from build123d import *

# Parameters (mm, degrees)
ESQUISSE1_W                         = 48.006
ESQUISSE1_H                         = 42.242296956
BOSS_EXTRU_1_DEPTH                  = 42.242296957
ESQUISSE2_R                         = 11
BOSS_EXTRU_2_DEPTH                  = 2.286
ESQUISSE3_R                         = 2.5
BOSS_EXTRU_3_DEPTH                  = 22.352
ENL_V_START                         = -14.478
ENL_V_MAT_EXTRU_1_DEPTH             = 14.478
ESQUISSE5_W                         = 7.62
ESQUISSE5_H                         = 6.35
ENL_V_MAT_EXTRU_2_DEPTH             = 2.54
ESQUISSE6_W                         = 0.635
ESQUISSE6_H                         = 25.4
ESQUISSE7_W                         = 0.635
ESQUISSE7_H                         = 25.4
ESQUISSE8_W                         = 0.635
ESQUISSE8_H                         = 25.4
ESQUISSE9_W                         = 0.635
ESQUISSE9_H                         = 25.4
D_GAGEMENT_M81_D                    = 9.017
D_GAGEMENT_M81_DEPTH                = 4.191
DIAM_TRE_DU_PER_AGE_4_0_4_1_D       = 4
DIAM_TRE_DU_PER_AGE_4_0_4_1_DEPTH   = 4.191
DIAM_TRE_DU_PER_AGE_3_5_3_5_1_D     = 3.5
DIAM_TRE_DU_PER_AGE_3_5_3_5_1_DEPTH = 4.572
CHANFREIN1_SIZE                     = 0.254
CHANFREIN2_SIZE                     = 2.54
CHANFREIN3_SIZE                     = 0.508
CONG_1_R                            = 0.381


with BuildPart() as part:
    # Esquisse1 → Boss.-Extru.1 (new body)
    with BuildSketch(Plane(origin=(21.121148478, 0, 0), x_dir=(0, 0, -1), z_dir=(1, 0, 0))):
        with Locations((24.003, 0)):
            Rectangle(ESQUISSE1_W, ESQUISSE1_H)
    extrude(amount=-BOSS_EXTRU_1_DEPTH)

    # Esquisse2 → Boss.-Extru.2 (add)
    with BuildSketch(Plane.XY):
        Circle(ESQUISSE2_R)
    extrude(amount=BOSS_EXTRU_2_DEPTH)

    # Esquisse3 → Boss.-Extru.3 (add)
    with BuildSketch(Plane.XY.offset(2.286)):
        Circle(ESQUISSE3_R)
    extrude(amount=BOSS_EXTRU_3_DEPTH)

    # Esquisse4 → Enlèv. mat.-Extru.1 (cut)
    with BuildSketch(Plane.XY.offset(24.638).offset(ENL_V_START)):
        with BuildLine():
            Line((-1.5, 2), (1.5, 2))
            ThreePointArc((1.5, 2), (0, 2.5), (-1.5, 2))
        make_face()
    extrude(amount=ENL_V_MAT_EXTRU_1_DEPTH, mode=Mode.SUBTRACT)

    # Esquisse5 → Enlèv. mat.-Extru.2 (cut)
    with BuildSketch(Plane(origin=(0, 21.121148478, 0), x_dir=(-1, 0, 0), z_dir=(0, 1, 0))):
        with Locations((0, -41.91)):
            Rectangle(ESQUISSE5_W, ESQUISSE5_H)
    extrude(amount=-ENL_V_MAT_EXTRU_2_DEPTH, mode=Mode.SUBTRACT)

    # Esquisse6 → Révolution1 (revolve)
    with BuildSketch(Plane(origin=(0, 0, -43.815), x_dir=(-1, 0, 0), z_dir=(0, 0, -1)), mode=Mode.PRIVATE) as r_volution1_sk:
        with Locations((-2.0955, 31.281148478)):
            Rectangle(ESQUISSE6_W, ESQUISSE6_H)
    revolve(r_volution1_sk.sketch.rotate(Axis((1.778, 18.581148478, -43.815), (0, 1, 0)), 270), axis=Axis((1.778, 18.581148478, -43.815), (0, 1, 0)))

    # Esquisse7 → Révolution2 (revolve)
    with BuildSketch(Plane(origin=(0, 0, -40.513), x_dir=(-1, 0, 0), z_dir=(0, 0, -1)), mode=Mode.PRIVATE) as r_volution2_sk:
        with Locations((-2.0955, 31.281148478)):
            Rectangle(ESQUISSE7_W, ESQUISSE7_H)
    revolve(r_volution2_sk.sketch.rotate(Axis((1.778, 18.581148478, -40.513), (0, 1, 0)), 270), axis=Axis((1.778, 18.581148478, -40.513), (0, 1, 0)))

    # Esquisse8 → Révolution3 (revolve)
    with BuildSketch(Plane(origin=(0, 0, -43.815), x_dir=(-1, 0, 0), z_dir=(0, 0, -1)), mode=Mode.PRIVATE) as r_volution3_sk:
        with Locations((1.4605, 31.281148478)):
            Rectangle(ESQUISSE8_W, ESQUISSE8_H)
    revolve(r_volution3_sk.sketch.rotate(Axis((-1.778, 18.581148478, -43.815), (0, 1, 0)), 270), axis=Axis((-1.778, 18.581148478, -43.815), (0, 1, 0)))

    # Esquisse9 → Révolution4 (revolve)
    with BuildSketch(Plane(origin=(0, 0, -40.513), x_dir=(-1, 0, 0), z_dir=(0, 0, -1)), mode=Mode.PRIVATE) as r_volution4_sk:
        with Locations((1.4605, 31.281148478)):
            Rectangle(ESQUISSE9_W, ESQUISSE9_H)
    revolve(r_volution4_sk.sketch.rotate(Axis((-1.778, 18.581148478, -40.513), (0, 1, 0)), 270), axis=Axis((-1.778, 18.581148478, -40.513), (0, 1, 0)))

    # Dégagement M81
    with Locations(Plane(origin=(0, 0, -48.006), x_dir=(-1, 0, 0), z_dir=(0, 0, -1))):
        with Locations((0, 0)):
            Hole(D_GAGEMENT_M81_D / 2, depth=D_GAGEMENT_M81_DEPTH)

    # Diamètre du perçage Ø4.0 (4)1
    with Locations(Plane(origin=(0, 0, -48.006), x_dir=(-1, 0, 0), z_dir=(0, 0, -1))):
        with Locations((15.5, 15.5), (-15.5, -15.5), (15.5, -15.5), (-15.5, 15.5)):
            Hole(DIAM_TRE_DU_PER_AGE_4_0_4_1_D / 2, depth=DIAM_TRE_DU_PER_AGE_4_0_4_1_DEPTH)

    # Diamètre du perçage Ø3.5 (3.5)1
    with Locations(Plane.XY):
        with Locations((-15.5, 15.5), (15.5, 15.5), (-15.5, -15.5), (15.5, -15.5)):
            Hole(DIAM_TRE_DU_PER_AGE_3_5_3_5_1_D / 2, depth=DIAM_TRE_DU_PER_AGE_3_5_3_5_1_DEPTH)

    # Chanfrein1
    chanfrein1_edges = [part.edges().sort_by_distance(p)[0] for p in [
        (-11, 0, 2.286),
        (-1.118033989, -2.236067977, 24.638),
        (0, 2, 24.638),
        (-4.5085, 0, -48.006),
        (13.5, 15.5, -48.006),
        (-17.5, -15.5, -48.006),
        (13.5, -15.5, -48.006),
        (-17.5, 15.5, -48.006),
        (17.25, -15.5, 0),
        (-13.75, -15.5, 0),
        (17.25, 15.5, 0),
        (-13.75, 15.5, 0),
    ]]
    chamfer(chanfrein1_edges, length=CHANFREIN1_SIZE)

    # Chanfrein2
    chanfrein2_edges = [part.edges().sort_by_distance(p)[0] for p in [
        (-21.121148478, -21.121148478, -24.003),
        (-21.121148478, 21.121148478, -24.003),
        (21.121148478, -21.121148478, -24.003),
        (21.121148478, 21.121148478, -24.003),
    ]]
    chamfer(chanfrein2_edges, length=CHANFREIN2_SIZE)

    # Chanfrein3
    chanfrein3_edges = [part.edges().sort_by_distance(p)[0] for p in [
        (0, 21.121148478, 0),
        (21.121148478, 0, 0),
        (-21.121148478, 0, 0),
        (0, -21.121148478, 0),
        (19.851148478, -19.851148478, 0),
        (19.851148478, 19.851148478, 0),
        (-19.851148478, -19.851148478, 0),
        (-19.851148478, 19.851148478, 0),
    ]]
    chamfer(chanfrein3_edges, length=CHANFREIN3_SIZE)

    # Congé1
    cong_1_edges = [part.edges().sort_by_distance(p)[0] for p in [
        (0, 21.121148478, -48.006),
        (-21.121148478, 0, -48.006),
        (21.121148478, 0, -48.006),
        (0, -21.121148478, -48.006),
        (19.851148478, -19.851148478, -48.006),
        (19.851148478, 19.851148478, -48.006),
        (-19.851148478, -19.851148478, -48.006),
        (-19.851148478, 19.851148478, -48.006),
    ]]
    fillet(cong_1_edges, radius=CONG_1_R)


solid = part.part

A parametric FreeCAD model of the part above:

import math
import FreeCAD as App
import Part
import Sketcher
Q = App.Units.Quantity


def edges_at(feature, points):
    """Names of the edges that pass closest to the given points."""
    edges = feature.Shape.Edges
    near = lambda p: min(range(len(edges)), key=lambda i: edges[i].distToShape(Part.Vertex(*p))[0])
    return sorted({f"Edge{near(p) + 1}" for p in points})

doc = App.newDocument("Part")
body = doc.addObject("PartDesign::Body", "Body")

# Sketch on YZ plane
sketch1 = body.newObject("Sketcher::SketchObject", "Sketch")
sketch1.AttachmentSupport = (doc.getObject("YZ_Plane"), [""])
sketch1.MapMode = "FlatFace"
sketch1.AttachmentOffset = App.Placement(App.Vector(0, 0, 21.121148), App.Rotation())
sketch1.addGeometry(Part.LineSegment(App.Vector(21, 0, 0), App.Vector(-21, 0, 0)), False)
sketch1.addGeometry(Part.LineSegment(App.Vector(-21, 0, 0), App.Vector(-21, -48, 0)), False)
sketch1.addGeometry(Part.LineSegment(App.Vector(-21, -48, 0), App.Vector(21, -48, 0)), False)
sketch1.addGeometry(Part.LineSegment(App.Vector(21, -48, 0), App.Vector(21, 0, 0)), False)
sketch1.addConstraint(Sketcher.Constraint("Coincident", 0, 2, 1, 1))
sketch1.addConstraint(Sketcher.Constraint("Coincident", 1, 2, 2, 1))
sketch1.addConstraint(Sketcher.Constraint("Coincident", 2, 2, 3, 1))
sketch1.addConstraint(Sketcher.Constraint("Coincident", 3, 2, 0, 1))
sketch1.addConstraint(Sketcher.Constraint("Horizontal", 0))
sketch1.addConstraint(Sketcher.Constraint("Vertical", 1))
sketch1.addConstraint(Sketcher.Constraint("Horizontal", 2))
sketch1.addConstraint(Sketcher.Constraint("Vertical", 3))
sketch1.addConstraint(Sketcher.Constraint("Symmetric", 0, 2, 3, 2, -1, 1))
sketch1.addConstraint(Sketcher.Constraint("DistanceY", 1, 2, 1, 1, Q("1.89 in")))
sketch1.addConstraint(Sketcher.Constraint("DistanceX", 0, 2, 0, 1, Q("42.242297 mm")))
pad1 = body.newObject("PartDesign::Pad", "Pad")
pad1.Profile = sketch1
pad1.Length = 42.242297
pad1.Reversed = True

# Sketch on XY plane
sketch2 = body.newObject("Sketcher::SketchObject", "Sketch001")
sketch2.AttachmentSupport = (doc.getObject("XY_Plane"), [""])
sketch2.MapMode = "FlatFace"
sketch2.addGeometry(Part.Circle(App.Vector(0, 0, 0), App.Vector(0, 0, 1), 11), False)
sketch2.addConstraint(Sketcher.Constraint("Coincident", 0, 3, -1, 1))
sketch2.addConstraint(Sketcher.Constraint("Diameter", 0, Q("22 mm")))
pad2 = body.newObject("PartDesign::Pad", "Pad001")
pad2.Profile = sketch2
pad2.Length = Q("0.09 in")

# Sketch on XY plane
sketch3 = body.newObject("Sketcher::SketchObject", "Sketch002")
sketch3.AttachmentSupport = (doc.getObject("XY_Plane"), [""])
sketch3.MapMode = "FlatFace"
sketch3.AttachmentOffset = App.Placement(App.Vector(0, 0, 0.09 * 25.4), App.Rotation())
sketch3.addGeometry(Part.Circle(App.Vector(0, 0, 0), App.Vector(0, 0, 1), 2.5), False)
sketch3.addConstraint(Sketcher.Constraint("Coincident", 0, 3, -1, 1))
sketch3.addConstraint(Sketcher.Constraint("Diameter", 0, Q("5 mm")))
pad3 = body.newObject("PartDesign::Pad", "Pad002")
pad3.Profile = sketch3
pad3.Length = Q("0.88 in")

# Sketch on XY plane
sketch4 = body.newObject("Sketcher::SketchObject", "Sketch003")
sketch4.AttachmentSupport = (doc.getObject("XY_Plane"), [""])
sketch4.MapMode = "FlatFace"
sketch4.AttachmentOffset = App.Placement(App.Vector(0, 0, 0.4 * 25.4), App.Rotation())
sketch4.addGeometry(Part.LineSegment(App.Vector(-1.5, 2, 0), App.Vector(1.5, 2, 0)), False)
sketch4.addGeometry(Part.ArcOfCircle(Part.Circle(App.Vector(0, 0, 0), App.Vector(0, 0, 1), 2.5), math.radians(53), math.radians(127)), False)
sketch4.addConstraint(Sketcher.Constraint("Coincident", 0, 1, 1, 2))
sketch4.addConstraint(Sketcher.Constraint("Coincident", 1, 1, 0, 2))
sketch4.addConstraint(Sketcher.Constraint("Horizontal", 0))
sketch4.addConstraint(Sketcher.Constraint("Coincident", 1, 3, -1, 1))
sketch4.addConstraint(Sketcher.Constraint("Radius", 1, Q("2.5 mm")))
sketch4.addConstraint(Sketcher.Constraint("DistanceX", 0, 1, 0, 2, Q("3 mm")))
pocket1 = body.newObject("PartDesign::Pocket", "Pocket")
pocket1.Profile = sketch4
pocket1.Length = Q("0.57 in")
pocket1.Reversed = True

# Sketch on XZ plane
sketch5 = body.newObject("Sketcher::SketchObject", "Sketch004")
sketch5.AttachmentSupport = (doc.getObject("XZ_Plane"), [""])
sketch5.MapMode = "FlatFace"
sketch5.AttachmentOffset = App.Placement(App.Vector(0, 0, -21.121148), App.Rotation())
sketch5.addGeometry(Part.LineSegment(App.Vector(4, -39, 0), App.Vector(4, -45, 0)), False)
sketch5.addGeometry(Part.LineSegment(App.Vector(4, -45, 0), App.Vector(-4, -45, 0)), False)
sketch5.addGeometry(Part.LineSegment(App.Vector(-4, -45, 0), App.Vector(-4, -39, 0)), False)
sketch5.addGeometry(Part.LineSegment(App.Vector(-4, -39, 0), App.Vector(4, -39, 0)), False)
sketch5.addConstraint(Sketcher.Constraint("Coincident", 0, 2, 1, 1))
sketch5.addConstraint(Sketcher.Constraint("Coincident", 1, 2, 2, 1))
sketch5.addConstraint(Sketcher.Constraint("Coincident", 2, 2, 3, 1))
sketch5.addConstraint(Sketcher.Constraint("Coincident", 3, 2, 0, 1))
sketch5.addConstraint(Sketcher.Constraint("Vertical", 0))
sketch5.addConstraint(Sketcher.Constraint("Horizontal", 1))
sketch5.addConstraint(Sketcher.Constraint("Vertical", 2))
sketch5.addConstraint(Sketcher.Constraint("Horizontal", 3))
sketch5.addConstraint(Sketcher.Constraint("DistanceX", 1, 2, 1, 1, Q("0.3 in")))
sketch5.addConstraint(Sketcher.Constraint("DistanceY", 0, 2, 0, 1, Q("0.25 in")))
sketch5.addConstraint(Sketcher.Constraint("DistanceX", -1, 1, 0, 2, Q("0.15 in")))
sketch5.addConstraint(Sketcher.Constraint("DistanceY", 0, 2, -1, 1, Q("1.775 in")))
pocket2 = body.newObject("PartDesign::Pocket", "Pocket001")
pocket2.Profile = sketch5
pocket2.Length = Q("0.1 in")
pocket2.Reversed = True

# Sketch on XY plane
sketch6 = body.newObject("Sketcher::SketchObject", "Sketch005")
sketch6.AttachmentSupport = (doc.getObject("XY_Plane"), [""])
sketch6.MapMode = "FlatFace"
sketch6.AttachmentOffset = App.Placement(App.Vector(0, 0, -1.725 * 25.4), App.Rotation())
sketch6.addGeometry(Part.LineSegment(App.Vector(2.4, 44, 0), App.Vector(2.4, 18.6, 0)), False)
sketch6.addGeometry(Part.LineSegment(App.Vector(2.4, 18.6, 0), App.Vector(1.8, 18.6, 0)), False)
sketch6.addGeometry(Part.LineSegment(App.Vector(1.8, 18.6, 0), App.Vector(1.8, 44, 0)), False)
sketch6.addGeometry(Part.LineSegment(App.Vector(1.8, 44, 0), App.Vector(2.4, 44, 0)), False)
sketch6.addGeometry(Part.LineSegment(App.Vector(1.8, 18.6, 0), App.Vector(1.8, 44, 0)), True)  # axis
sketch6.addConstraint(Sketcher.Constraint("Coincident", 0, 2, 1, 1))
sketch6.addConstraint(Sketcher.Constraint("Coincident", 1, 2, 2, 1))
sketch6.addConstraint(Sketcher.Constraint("Coincident", 2, 2, 3, 1))
sketch6.addConstraint(Sketcher.Constraint("Coincident", 3, 2, 0, 1))
sketch6.addConstraint(Sketcher.Constraint("Vertical", 0))
sketch6.addConstraint(Sketcher.Constraint("Horizontal", 1))
sketch6.addConstraint(Sketcher.Constraint("Vertical", 2))
sketch6.addConstraint(Sketcher.Constraint("Horizontal", 3))
sketch6.addConstraint(Sketcher.Constraint("Vertical", 4))
sketch6.addConstraint(Sketcher.Constraint("Coincident", 4, 1, 1, 2))
sketch6.addConstraint(Sketcher.Constraint("Horizontal", 3, 2, 4, 2))
sketch6.addConstraint(Sketcher.Constraint("DistanceY", 0, 2, 0, 1, Q("1 in")))
sketch6.addConstraint(Sketcher.Constraint("DistanceX", 1, 2, 1, 1, Q("0.025 in")))
sketch6.addConstraint(Sketcher.Constraint("DistanceX", -1, 1, 1, 2, Q("0.07 in")))
sketch6.addConstraint(Sketcher.Constraint("DistanceY", -1, 1, 0, 2, Q("18.581148 mm")))
revolution = body.newObject("PartDesign::Revolution", "Revolution")
revolution.Profile = sketch6
revolution.ReferenceAxis = (sketch6, ["Axis0"])
revolution.Angle = 360

# Sketch on XY plane
sketch7 = body.newObject("Sketcher::SketchObject", "Sketch006")
sketch7.AttachmentSupport = (doc.getObject("XY_Plane"), [""])
sketch7.MapMode = "FlatFace"
sketch7.AttachmentOffset = App.Placement(App.Vector(0, 0, -1.595 * 25.4), App.Rotation())
sketch7.addGeometry(Part.LineSegment(App.Vector(2.4, 44, 0), App.Vector(2.4, 18.6, 0)), False)
sketch7.addGeometry(Part.LineSegment(App.Vector(2.4, 18.6, 0), App.Vector(1.8, 18.6, 0)), False)
sketch7.addGeometry(Part.LineSegment(App.Vector(1.8, 18.6, 0), App.Vector(1.8, 44, 0)), False)
sketch7.addGeometry(Part.LineSegment(App.Vector(1.8, 44, 0), App.Vector(2.4, 44, 0)), False)
sketch7.addGeometry(Part.LineSegment(App.Vector(1.8, 18.6, 0), App.Vector(1.8, 44, 0)), True)  # axis
sketch7.addConstraint(Sketcher.Constraint("Coincident", 0, 2, 1, 1))
sketch7.addConstraint(Sketcher.Constraint("Coincident", 1, 2, 2, 1))
sketch7.addConstraint(Sketcher.Constraint("Coincident", 2, 2, 3, 1))
sketch7.addConstraint(Sketcher.Constraint("Coincident", 3, 2, 0, 1))
sketch7.addConstraint(Sketcher.Constraint("Vertical", 0))
sketch7.addConstraint(Sketcher.Constraint("Horizontal", 1))
sketch7.addConstraint(Sketcher.Constraint("Vertical", 2))
sketch7.addConstraint(Sketcher.Constraint("Horizontal", 3))
sketch7.addConstraint(Sketcher.Constraint("Vertical", 4))
sketch7.addConstraint(Sketcher.Constraint("Coincident", 4, 1, 1, 2))
sketch7.addConstraint(Sketcher.Constraint("Horizontal", 3, 2, 4, 2))
sketch7.addConstraint(Sketcher.Constraint("DistanceY", 0, 2, 0, 1, Q("1 in")))
sketch7.addConstraint(Sketcher.Constraint("DistanceX", 1, 2, 1, 1, Q("0.025 in")))
sketch7.addConstraint(Sketcher.Constraint("DistanceX", -1, 1, 1, 2, Q("0.07 in")))
sketch7.addConstraint(Sketcher.Constraint("DistanceY", -1, 1, 0, 2, Q("18.581148 mm")))
revolution2 = body.newObject("PartDesign::Revolution", "Revolution001")
revolution2.Profile = sketch7
revolution2.ReferenceAxis = (sketch7, ["Axis0"])
revolution2.Angle = 360

# Sketch on XY plane
sketch8 = body.newObject("Sketcher::SketchObject", "Sketch007")
sketch8.AttachmentSupport = (doc.getObject("XY_Plane"), [""])
sketch8.MapMode = "FlatFace"
sketch8.AttachmentOffset = App.Placement(App.Vector(0, 0, -1.725 * 25.4), App.Rotation())
sketch8.addGeometry(Part.LineSegment(App.Vector(-1.1, 44, 0), App.Vector(-1.1, 18.6, 0)), False)
sketch8.addGeometry(Part.LineSegment(App.Vector(-1.1, 18.6, 0), App.Vector(-1.8, 18.6, 0)), False)
sketch8.addGeometry(Part.LineSegment(App.Vector(-1.8, 18.6, 0), App.Vector(-1.8, 44, 0)), False)
sketch8.addGeometry(Part.LineSegment(App.Vector(-1.8, 44, 0), App.Vector(-1.1, 44, 0)), False)
sketch8.addGeometry(Part.LineSegment(App.Vector(-1.8, 18.6, 0), App.Vector(-1.8, 44, 0)), True)  # axis
sketch8.addConstraint(Sketcher.Constraint("Coincident", 0, 2, 1, 1))
sketch8.addConstraint(Sketcher.Constraint("Coincident", 1, 2, 2, 1))
sketch8.addConstraint(Sketcher.Constraint("Coincident", 2, 2, 3, 1))
sketch8.addConstraint(Sketcher.Constraint("Coincident", 3, 2, 0, 1))
sketch8.addConstraint(Sketcher.Constraint("Vertical", 0))
sketch8.addConstraint(Sketcher.Constraint("Horizontal", 1))
sketch8.addConstraint(Sketcher.Constraint("Vertical", 2))
sketch8.addConstraint(Sketcher.Constraint("Horizontal", 3))
sketch8.addConstraint(Sketcher.Constraint("Vertical", 4))
sketch8.addConstraint(Sketcher.Constraint("Coincident", 4, 1, 1, 2))
sketch8.addConstraint(Sketcher.Constraint("Horizontal", 3, 2, 4, 2))
sketch8.addConstraint(Sketcher.Constraint("DistanceY", 0, 2, 0, 1, Q("1 in")))
sketch8.addConstraint(Sketcher.Constraint("DistanceX", 1, 2, 1, 1, Q("0.025 in")))
sketch8.addConstraint(Sketcher.Constraint("DistanceX", 1, 2, -1, 1, Q("0.07 in")))
sketch8.addConstraint(Sketcher.Constraint("DistanceY", -1, 1, 0, 2, Q("18.581148 mm")))
revolution3 = body.newObject("PartDesign::Revolution", "Revolution002")
revolution3.Profile = sketch8
revolution3.ReferenceAxis = (sketch8, ["Axis0"])
revolution3.Angle = 360

# Sketch on XY plane
sketch9 = body.newObject("Sketcher::SketchObject", "Sketch008")
sketch9.AttachmentSupport = (doc.getObject("XY_Plane"), [""])
sketch9.MapMode = "FlatFace"
sketch9.AttachmentOffset = App.Placement(App.Vector(0, 0, -1.595 * 25.4), App.Rotation())
sketch9.addGeometry(Part.LineSegment(App.Vector(-1.1, 44, 0), App.Vector(-1.1, 18.6, 0)), False)
sketch9.addGeometry(Part.LineSegment(App.Vector(-1.1, 18.6, 0), App.Vector(-1.8, 18.6, 0)), False)
sketch9.addGeometry(Part.LineSegment(App.Vector(-1.8, 18.6, 0), App.Vector(-1.8, 44, 0)), False)
sketch9.addGeometry(Part.LineSegment(App.Vector(-1.8, 44, 0), App.Vector(-1.1, 44, 0)), False)
sketch9.addGeometry(Part.LineSegment(App.Vector(-1.8, 18.6, 0), App.Vector(-1.8, 44, 0)), True)  # axis
sketch9.addConstraint(Sketcher.Constraint("Coincident", 0, 2, 1, 1))
sketch9.addConstraint(Sketcher.Constraint("Coincident", 1, 2, 2, 1))
sketch9.addConstraint(Sketcher.Constraint("Coincident", 2, 2, 3, 1))
sketch9.addConstraint(Sketcher.Constraint("Coincident", 3, 2, 0, 1))
sketch9.addConstraint(Sketcher.Constraint("Vertical", 0))
sketch9.addConstraint(Sketcher.Constraint("Horizontal", 1))
sketch9.addConstraint(Sketcher.Constraint("Vertical", 2))
sketch9.addConstraint(Sketcher.Constraint("Horizontal", 3))
sketch9.addConstraint(Sketcher.Constraint("Vertical", 4))
sketch9.addConstraint(Sketcher.Constraint("Coincident", 4, 1, 1, 2))
sketch9.addConstraint(Sketcher.Constraint("Horizontal", 3, 2, 4, 2))
sketch9.addConstraint(Sketcher.Constraint("DistanceY", 0, 2, 0, 1, Q("1 in")))
sketch9.addConstraint(Sketcher.Constraint("DistanceX", 1, 2, 1, 1, Q("0.025 in")))
sketch9.addConstraint(Sketcher.Constraint("DistanceX", 1, 2, -1, 1, Q("0.07 in")))
sketch9.addConstraint(Sketcher.Constraint("DistanceY", -1, 1, 0, 2, Q("18.581148 mm")))
revolution4 = body.newObject("PartDesign::Revolution", "Revolution003")
revolution4.Profile = sketch9
revolution4.ReferenceAxis = (sketch9, ["Axis0"])
revolution4.Angle = 360

# Sketch on XY plane
sketch10 = body.newObject("Sketcher::SketchObject", "Sketch009")
sketch10.AttachmentSupport = (doc.getObject("XY_Plane"), [""])
sketch10.MapMode = "FlatFace"
sketch10.AttachmentOffset = App.Placement(App.Vector(0, 0, -1.89 * 25.4), App.Rotation())
sketch10.addGeometry(Part.Circle(App.Vector(0, 0, 0), App.Vector(0, 0, 1), 4.5), False)
sketch10.addConstraint(Sketcher.Constraint("Coincident", 0, 3, -1, 1))
sketch10.addConstraint(Sketcher.Constraint("Diameter", 0, Q("0.355 in")))
doc.recompute()
hole = body.newObject("PartDesign::Hole", "Hole")
hole.Profile = sketch10
hole.ThreadType = "None"
hole.Diameter = Q("0.355 in")
hole.DepthType = "Dimension"
hole.Depth = Q("0.165 in")
hole.DrillPoint = "Flat"
hole.Reversed = True

# Sketch on XY plane
sketch11 = body.newObject("Sketcher::SketchObject", "Sketch010")
sketch11.AttachmentSupport = (doc.getObject("XY_Plane"), [""])
sketch11.MapMode = "FlatFace"
sketch11.AttachmentOffset = App.Placement(App.Vector(0, 0, -1.89 * 25.4), App.Rotation())
sketch11.addGeometry(Part.Circle(App.Vector(-15.5, 15.5, 0), App.Vector(0, 0, 1), 2), False)
sketch11.addGeometry(Part.Circle(App.Vector(15.5, -15.5, 0), App.Vector(0, 0, 1), 2), False)
sketch11.addGeometry(Part.Circle(App.Vector(-15.5, -15.5, 0), App.Vector(0, 0, 1), 2), False)
sketch11.addGeometry(Part.Circle(App.Vector(15.5, 15.5, 0), App.Vector(0, 0, 1), 2), False)
sketch11.addConstraint(Sketcher.Constraint("Equal", 0, 1))
sketch11.addConstraint(Sketcher.Constraint("Equal", 1, 2))
sketch11.addConstraint(Sketcher.Constraint("Equal", 2, 3))
sketch11.addConstraint(Sketcher.Constraint("Symmetric", 0, 3, 1, 3, -1, 1))
sketch11.addConstraint(Sketcher.Constraint("Symmetric", 2, 3, 3, 3, -1, 1))
sketch11.addConstraint(Sketcher.Constraint("Symmetric", 1, 3, 2, 3, -2))
sketch11.addConstraint(Sketcher.Constraint("Diameter", 0, Q("4 mm")))
sketch11.addConstraint(Sketcher.Constraint("DistanceX", 0, 3, -1, 1, Q("15.5 mm")))
sketch11.addConstraint(Sketcher.Constraint("DistanceY", -1, 1, 0, 3, Q("15.5 mm")))
doc.recompute()
hole2 = body.newObject("PartDesign::Hole", "Hole001")
hole2.Profile = sketch11
hole2.ThreadType = "None"
hole2.Diameter = 4
hole2.DepthType = "Dimension"
hole2.Depth = Q("0.165 in")
hole2.DrillPoint = "Flat"
hole2.Reversed = True

# Sketch on XY plane
sketch12 = body.newObject("Sketcher::SketchObject", "Sketch011")
sketch12.AttachmentSupport = (doc.getObject("XY_Plane"), [""])
sketch12.MapMode = "FlatFace"
sketch12.addGeometry(Part.Circle(App.Vector(-15.5, 15.5, 0), App.Vector(0, 0, 1), 1.8), False)
sketch12.addGeometry(Part.Circle(App.Vector(15.5, 15.5, 0), App.Vector(0, 0, 1), 1.8), False)
sketch12.addGeometry(Part.Circle(App.Vector(-15.5, -15.5, 0), App.Vector(0, 0, 1), 1.8), False)
sketch12.addGeometry(Part.Circle(App.Vector(15.5, -15.5, 0), App.Vector(0, 0, 1), 1.8), False)
sketch12.addConstraint(Sketcher.Constraint("Equal", 0, 1))
sketch12.addConstraint(Sketcher.Constraint("Equal", 1, 2))
sketch12.addConstraint(Sketcher.Constraint("Equal", 2, 3))
sketch12.addConstraint(Sketcher.Constraint("Symmetric", 1, 3, 2, 3, -1, 1))
sketch12.addConstraint(Sketcher.Constraint("Symmetric", 0, 3, 3, 3, -1, 1))
sketch12.addConstraint(Sketcher.Constraint("Symmetric", 0, 3, 1, 3, -2))
sketch12.addConstraint(Sketcher.Constraint("Diameter", 0, Q("3.5 mm")))
sketch12.addConstraint(Sketcher.Constraint("DistanceX", 0, 3, -1, 1, Q("15.5 mm")))
sketch12.addConstraint(Sketcher.Constraint("DistanceY", -1, 1, 0, 3, Q("15.5 mm")))
doc.recompute()
hole3 = body.newObject("PartDesign::Hole", "Hole002")
hole3.Profile = sketch12
hole3.ThreadType = "None"
hole3.Diameter = 3.5
hole3.DepthType = "Dimension"
hole3.Depth = Q("0.18 in")
hole3.DrillPoint = "Flat"
doc.recompute()

chamfer = body.newObject("PartDesign::Chamfer", "Chamfer")
chamfer.Base = (hole3, edges_at(hole3, [
    (-11, 0, 2.286),
    (-1.118, -2.236, 24.638),
    (0, 2, 24.638),
    (-4.508, 0, -48.006),
    (13.5, 15.5, -48.006),
    (-17.5, -15.5, -48.006),
    (13.5, -15.5, -48.006),
    (-17.5, 15.5, -48.006),
    (17.25, -15.5, 0),
    (-13.75, -15.5, 0),
    (17.25, 15.5, 0),
    (-13.75, 15.5, 0),
]))
chamfer.Size = Q("0.01 in")
doc.recompute()

chamfer2 = body.newObject("PartDesign::Chamfer", "Chamfer001")
chamfer2.Base = (chamfer, edges_at(chamfer, [
    (-21.121, -21.121, -24.003),
    (-21.121, 21.121, -24.003),
    (21.121, -21.121, -24.003),
    (21.121, 21.121, -24.003),
]))
chamfer2.Size = Q("0.1 in")
doc.recompute()

chamfer3 = body.newObject("PartDesign::Chamfer", "Chamfer002")
chamfer3.Base = (chamfer2, edges_at(chamfer2, [
    (0, 21.121, 0),
    (21.121, 0, 0),
    (-21.121, 0, 0),
    (0, -21.121, 0),
    (19.851, -19.851, 0),
    (19.851, 19.851, 0),
    (-19.851, -19.851, 0),
    (-19.851, 19.851, 0),
]))
chamfer3.Size = Q("0.02 in")
doc.recompute()

fillet = body.newObject("PartDesign::Fillet", "Fillet")
fillet.Base = (chamfer3, edges_at(chamfer3, [
    (0, 21.121, -48.006),
    (-21.121, 0, -48.006),
    (21.121, 0, -48.006),
    (0, -21.121, -48.006),
    (19.851, -19.851, -48.006),
    (19.851, 19.851, -48.006),
    (-19.851, -19.851, -48.006),
    (-19.851, 19.851, -48.006),
]))
fillet.Radius = Q("0.015 in")

doc.recompute()
